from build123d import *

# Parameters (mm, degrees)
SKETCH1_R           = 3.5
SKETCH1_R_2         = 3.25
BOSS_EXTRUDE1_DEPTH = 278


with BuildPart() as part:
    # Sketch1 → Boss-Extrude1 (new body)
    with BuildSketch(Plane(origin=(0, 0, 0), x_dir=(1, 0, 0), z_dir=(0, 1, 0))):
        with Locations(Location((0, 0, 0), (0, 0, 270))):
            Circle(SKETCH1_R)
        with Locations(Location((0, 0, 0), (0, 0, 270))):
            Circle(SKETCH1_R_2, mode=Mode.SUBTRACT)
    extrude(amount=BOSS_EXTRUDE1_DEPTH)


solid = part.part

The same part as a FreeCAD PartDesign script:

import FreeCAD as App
import Part
import Sketcher

V = App.Vector

doc = App.newDocument("Part")
params = doc.addObject("Spreadsheet::Sheet", "Params")
for row, (alias, value) in enumerate([
    ("sketch1_diameter", "7 mm"),
    ("sketch1_diameter2", "6.5 mm"),
    ("pad1_length", "278 mm"),
], start=1):
    params.set(f"A{row}", alias)
    params.set(f"B{row}", "=" + value)
    params.setAlias(f"B{row}", alias)

body = doc.addObject("PartDesign::Body", "Body")

# Sketch on XZ plane
sketch1 = doc.addObject("Sketcher::SketchObject", "Sketch")
body.addObject(sketch1)
sketch1.AttachmentSupport = (doc.XZ_Plane, [""])
sketch1.MapMode = "FlatFace"
sketch1.addGeometry(Part.Circle(V(0, 0, 0), V(0, 0, 1), 3.5), False)
sketch1.addGeometry(Part.Circle(V(0, 0, 0), V(0, 0, 1), 3.25), False)
sketch1.addConstraint(Sketcher.Constraint("Coincident", 0, 3, -1, 1))
sketch1.addConstraint(Sketcher.Constraint("Coincident", 1, 3, -1, 1))
sketch1.addConstraint(Sketcher.Constraint("Diameter", 0, 7.0))
sketch1.addConstraint(Sketcher.Constraint("Diameter", 1, 6.5))
sketch1.setExpression("Constraints[2]", "Params.sketch1_diameter")
sketch1.setExpression("Constraints[3]", "Params.sketch1_diameter2")
pad1 = doc.addObject("PartDesign::Pad", "Pad")
body.addObject(pad1)
pad1.Profile = sketch1
pad1.setExpression("Length", "Params.pad1_length")
pad1.Reversed = True

doc.recompute()
